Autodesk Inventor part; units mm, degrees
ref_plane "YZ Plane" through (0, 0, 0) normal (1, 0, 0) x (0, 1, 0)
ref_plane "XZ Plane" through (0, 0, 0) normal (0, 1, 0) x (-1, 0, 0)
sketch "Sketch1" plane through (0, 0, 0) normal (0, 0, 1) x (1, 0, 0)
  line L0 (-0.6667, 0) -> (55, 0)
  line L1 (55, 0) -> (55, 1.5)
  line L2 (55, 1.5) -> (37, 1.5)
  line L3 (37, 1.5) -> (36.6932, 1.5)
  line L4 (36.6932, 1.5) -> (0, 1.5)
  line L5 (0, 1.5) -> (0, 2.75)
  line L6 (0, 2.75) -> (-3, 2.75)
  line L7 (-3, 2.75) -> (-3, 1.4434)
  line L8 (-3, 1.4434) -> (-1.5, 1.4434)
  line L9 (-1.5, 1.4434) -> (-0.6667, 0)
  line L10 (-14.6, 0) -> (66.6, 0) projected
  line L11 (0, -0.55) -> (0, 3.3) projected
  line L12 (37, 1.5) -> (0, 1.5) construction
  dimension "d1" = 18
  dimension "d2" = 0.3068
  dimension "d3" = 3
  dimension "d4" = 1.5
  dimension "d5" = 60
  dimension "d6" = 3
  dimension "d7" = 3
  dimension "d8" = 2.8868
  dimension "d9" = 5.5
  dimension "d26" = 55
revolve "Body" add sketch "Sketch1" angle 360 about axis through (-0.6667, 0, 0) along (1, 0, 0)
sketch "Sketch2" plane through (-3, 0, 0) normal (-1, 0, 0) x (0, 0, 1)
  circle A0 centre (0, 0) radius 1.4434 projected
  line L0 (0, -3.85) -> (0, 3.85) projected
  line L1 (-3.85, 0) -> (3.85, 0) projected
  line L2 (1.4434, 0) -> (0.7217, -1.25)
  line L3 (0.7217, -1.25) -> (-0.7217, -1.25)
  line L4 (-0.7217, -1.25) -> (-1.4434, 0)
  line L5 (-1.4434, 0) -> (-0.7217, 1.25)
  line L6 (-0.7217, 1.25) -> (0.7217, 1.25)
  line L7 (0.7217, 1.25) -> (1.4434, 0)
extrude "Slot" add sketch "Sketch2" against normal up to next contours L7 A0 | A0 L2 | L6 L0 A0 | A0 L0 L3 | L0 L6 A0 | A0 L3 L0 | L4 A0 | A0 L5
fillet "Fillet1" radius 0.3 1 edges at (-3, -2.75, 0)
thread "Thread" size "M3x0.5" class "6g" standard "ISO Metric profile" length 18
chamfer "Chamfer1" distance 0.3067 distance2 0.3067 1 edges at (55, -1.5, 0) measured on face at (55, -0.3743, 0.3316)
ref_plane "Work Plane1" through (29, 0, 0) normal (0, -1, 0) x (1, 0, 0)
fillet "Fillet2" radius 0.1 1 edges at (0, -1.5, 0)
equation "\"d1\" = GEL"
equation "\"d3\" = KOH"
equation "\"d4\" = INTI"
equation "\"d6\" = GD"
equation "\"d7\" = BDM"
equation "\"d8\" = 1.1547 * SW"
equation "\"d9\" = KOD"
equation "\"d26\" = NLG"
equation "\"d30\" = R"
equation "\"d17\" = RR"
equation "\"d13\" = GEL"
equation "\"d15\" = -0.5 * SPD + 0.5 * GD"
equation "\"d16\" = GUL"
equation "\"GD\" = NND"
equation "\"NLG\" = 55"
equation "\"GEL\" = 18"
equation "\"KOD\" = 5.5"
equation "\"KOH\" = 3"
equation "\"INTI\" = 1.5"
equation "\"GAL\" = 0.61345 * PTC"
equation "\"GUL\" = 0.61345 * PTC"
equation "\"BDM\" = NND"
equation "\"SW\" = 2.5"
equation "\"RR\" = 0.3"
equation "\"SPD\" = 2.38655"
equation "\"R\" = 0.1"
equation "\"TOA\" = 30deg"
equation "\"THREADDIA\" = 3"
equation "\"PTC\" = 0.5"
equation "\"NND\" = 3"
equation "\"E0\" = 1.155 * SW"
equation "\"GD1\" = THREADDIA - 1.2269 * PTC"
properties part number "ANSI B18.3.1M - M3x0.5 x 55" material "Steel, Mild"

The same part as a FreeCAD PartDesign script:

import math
import FreeCAD as App
import Part
import Sketcher

V = App.Vector
Q = App.Units.Quantity


def edges_at(feature, points):
    """Names of the edges that pass closest to the given points."""
    edges = feature.Shape.Edges
    near = lambda p: min(range(len(edges)), key=lambda i: edges[i].distToShape(Part.Vertex(*p))[0])
    return sorted({f"Edge{near(p) + 1}" for p in points})


def add_polygon(sketch, points):
    """Adds a closed chain of lines whose ends are joined by coincident constraints."""
    first, n = sketch.GeometryCount, len(points)
    for a, b in zip(points, points[1:] + points[:1]):
        sketch.addGeometry(Part.LineSegment(App.Vector(*a, 0), App.Vector(*b, 0)), False)
    for i in range(n):
        sketch.addConstraint(Sketcher.Constraint("Coincident", first + i, 2, first + (i + 1) % n, 1))

doc = App.newDocument("Part")
body = doc.addObject("PartDesign::Body", "Body")

# Sketch on XY plane
sketch1 = doc.addObject("Sketcher::SketchObject", "Sketch")
body.addObject(sketch1)
sketch1.AttachmentSupport = (doc.XY_Plane, [""])
sketch1.MapMode = "FlatFace"
add_polygon(sketch1, [(-1.5, 1.4), (-0.7, 0), (55, 0), (55, 1.5), (0, 1.5), (0, 2.8), (-3, 2.8), (-3, 1.4)])  # lines 0-7
sketch1.addConstraint([
    Sketcher.Constraint("Horizontal", 1),
    Sketcher.Constraint("Vertical", 2),
    Sketcher.Constraint("Horizontal", 3),
    Sketcher.Constraint("Vertical", 4),
    Sketcher.Constraint("Horizontal", 5),
    Sketcher.Constraint("Vertical", 6),
    Sketcher.Constraint("Horizontal", 7),
    Sketcher.Constraint("PointOnObject", 0, 2, -1),
    Sketcher.Constraint("PointOnObject", 3, 2, -2),
    Sketcher.Constraint("Equal", 7, 2),
    Sketcher.Constraint("DistanceX", 3, 2, 3, 1, Q("55 mm")),
    Sketcher.Constraint("DistanceX", 5, 2, 5, 1, Q("3 mm")),
    Sketcher.Constraint("DistanceX", 7, 1, 7, 2, Q("1.5 mm")),
    Sketcher.Constraint("DistanceY", 4, 1, 4, 2, Q("1.25 mm")),
    Sketcher.Constraint("DistanceX", 1, 1, 1, 2, Q("55.6667 mm")),
    Sketcher.Constraint("DistanceY", 6, 2, 6, 1, Q("1.3066 mm")),
])
revolution = doc.addObject("PartDesign::Revolution", "Revolution")
body.addObject(revolution)
revolution.Profile = sketch1
revolution.ReferenceAxis = (sketch1, ["H_Axis"])
revolution.Angle = 360

# Sketch on YZ plane
sketch2 = doc.addObject("Sketcher::SketchObject", "Sketch001")
body.addObject(sketch2)
sketch2.AttachmentSupport = (doc.YZ_Plane, [""])
sketch2.MapMode = "FlatFace"
sketch2.AttachmentOffset = App.Placement(V(0, 0, -3), App.Rotation())
sketch2.addGeometry([
    Part.LineSegment(V(1.2, 0.7, 0), V(0, 1.4, 0)),  # 0
    Part.ArcOfCircle(Part.Circle(V(0, 0, 0), V(0, 0, 1), 1.4), math.radians(30), math.radians(90)),  # 1
    Part.ArcOfCircle(Part.Circle(V(0, 0, 0), V(0, 0, 1), 1.4), math.radians(90), math.radians(150)),  # 2
    Part.LineSegment(V(0, 1.4, 0), V(-1.2, 0.7, 0)),  # 3
    Part.ArcOfCircle(Part.Circle(V(0, 0, 0), V(0, 0, 1), 1.4), math.radians(-30), math.radians(30)),  # 4
    Part.LineSegment(V(1.2, 0.7, 0), V(1.2, -0.7, 0)),  # 5
    Part.LineSegment(V(-1.2, 0.7, 0), V(-1.2, -0.7, 0)),  # 6
    Part.ArcOfCircle(Part.Circle(V(0, 0, 0), V(0, 0, 1), 1.4), math.radians(150), math.radians(210)),  # 7
    Part.LineSegment(V(-1.2, -0.7, 0), V(0, -1.4, 0)),  # 8
    Part.ArcOfCircle(Part.Circle(V(0, 0, 0), V(0, 0, 1), 1.4), math.radians(-150), math.radians(-90)),  # 9
    Part.ArcOfCircle(Part.Circle(V(0, 0, 0), V(0, 0, 1), 1.4), math.radians(-90), math.radians(-30)),  # 10
    Part.LineSegment(V(0, -1.4, 0), V(1.2, -0.7, 0)),  # 11
], False)
sketch2.addConstraint([
    Sketcher.Constraint("Coincident", 0, 1, 1, 1),
    Sketcher.Constraint("Coincident", 1, 2, 0, 2),
    Sketcher.Constraint("Coincident", 2, 1, 3, 1),
    Sketcher.Constraint("Coincident", 3, 2, 2, 2),
    Sketcher.Constraint("Coincident", 4, 1, 5, 2),
    Sketcher.Constraint("Coincident", 5, 1, 4, 2),
    Sketcher.Constraint("Coincident", 6, 1, 7, 1),
    Sketcher.Constraint("Coincident", 7, 2, 6, 2),
    Sketcher.Constraint("Coincident", 8, 1, 9, 1),
    Sketcher.Constraint("Coincident", 9, 2, 8, 2),
    Sketcher.Constraint("Coincident", 10, 1, 11, 1),
    Sketcher.Constraint("Coincident", 11, 2, 10, 2),
    Sketcher.Constraint("Vertical", 5),
    Sketcher.Constraint("Vertical", 6),
    Sketcher.Constraint("Coincident", 1, 3, -1, 1),
    Sketcher.Constraint("Coincident", 2, 3, -1, 1),
    Sketcher.Constraint("Coincident", 4, 3, -1, 1),
    Sketcher.Constraint("Coincident", 7, 3, -1, 1),
    Sketcher.Constraint("Coincident", 9, 3, -1, 1),
    Sketcher.Constraint("Coincident", 10, 3, -1, 1),
    Sketcher.Constraint("Coincident", 2, 1, 1, 2),
    Sketcher.Constraint("Coincident", 5, 1, 0, 1),
    Sketcher.Constraint("Coincident", 6, 1, 3, 2),
    Sketcher.Constraint("Coincident", 8, 1, 7, 2),
    Sketcher.Constraint("Coincident", 10, 1, 9, 2),
    Sketcher.Constraint("PointOnObject", 1, 2, -2),
    Sketcher.Constraint("PointOnObject", 9, 2, -2),
    Sketcher.Constraint("Parallel", 0, 8),
    Sketcher.Constraint("Parallel", 3, 11),
    Sketcher.Constraint("Angle", 0, Q("149.9996 deg")),
    Sketcher.Constraint("Radius", 1, Q("1.4434 mm")),
])
pad1 = doc.addObject("PartDesign::Pad", "Pad")
body.addObject(pad1)
pad1.Profile = sketch2
pad1.Type = "UpToFirst"
doc.recompute()

fillet = doc.addObject("PartDesign::Fillet", "Fillet")
body.addObject(fillet)
fillet.Base = (pad1, edges_at(pad1, [(-3, -2.75, 0)]))
fillet.Radius = 0.3
doc.recompute()

chamfer = doc.addObject("PartDesign::Chamfer", "Chamfer")
body.addObject(chamfer)
chamfer.Base = (fillet, edges_at(fillet, [(55, -1.5, 0)]))
chamfer.ChamferType = "Two distances"
chamfer.Size = 0.3067
chamfer.Size2 = 0.3067
doc.recompute()

fillet2 = doc.addObject("PartDesign::Fillet", "Fillet001")
body.addObject(fillet2)
fillet2.Base = (chamfer, edges_at(chamfer, [(0, -1.5, 0)]))
fillet2.Radius = 0.1

doc.recompute()
